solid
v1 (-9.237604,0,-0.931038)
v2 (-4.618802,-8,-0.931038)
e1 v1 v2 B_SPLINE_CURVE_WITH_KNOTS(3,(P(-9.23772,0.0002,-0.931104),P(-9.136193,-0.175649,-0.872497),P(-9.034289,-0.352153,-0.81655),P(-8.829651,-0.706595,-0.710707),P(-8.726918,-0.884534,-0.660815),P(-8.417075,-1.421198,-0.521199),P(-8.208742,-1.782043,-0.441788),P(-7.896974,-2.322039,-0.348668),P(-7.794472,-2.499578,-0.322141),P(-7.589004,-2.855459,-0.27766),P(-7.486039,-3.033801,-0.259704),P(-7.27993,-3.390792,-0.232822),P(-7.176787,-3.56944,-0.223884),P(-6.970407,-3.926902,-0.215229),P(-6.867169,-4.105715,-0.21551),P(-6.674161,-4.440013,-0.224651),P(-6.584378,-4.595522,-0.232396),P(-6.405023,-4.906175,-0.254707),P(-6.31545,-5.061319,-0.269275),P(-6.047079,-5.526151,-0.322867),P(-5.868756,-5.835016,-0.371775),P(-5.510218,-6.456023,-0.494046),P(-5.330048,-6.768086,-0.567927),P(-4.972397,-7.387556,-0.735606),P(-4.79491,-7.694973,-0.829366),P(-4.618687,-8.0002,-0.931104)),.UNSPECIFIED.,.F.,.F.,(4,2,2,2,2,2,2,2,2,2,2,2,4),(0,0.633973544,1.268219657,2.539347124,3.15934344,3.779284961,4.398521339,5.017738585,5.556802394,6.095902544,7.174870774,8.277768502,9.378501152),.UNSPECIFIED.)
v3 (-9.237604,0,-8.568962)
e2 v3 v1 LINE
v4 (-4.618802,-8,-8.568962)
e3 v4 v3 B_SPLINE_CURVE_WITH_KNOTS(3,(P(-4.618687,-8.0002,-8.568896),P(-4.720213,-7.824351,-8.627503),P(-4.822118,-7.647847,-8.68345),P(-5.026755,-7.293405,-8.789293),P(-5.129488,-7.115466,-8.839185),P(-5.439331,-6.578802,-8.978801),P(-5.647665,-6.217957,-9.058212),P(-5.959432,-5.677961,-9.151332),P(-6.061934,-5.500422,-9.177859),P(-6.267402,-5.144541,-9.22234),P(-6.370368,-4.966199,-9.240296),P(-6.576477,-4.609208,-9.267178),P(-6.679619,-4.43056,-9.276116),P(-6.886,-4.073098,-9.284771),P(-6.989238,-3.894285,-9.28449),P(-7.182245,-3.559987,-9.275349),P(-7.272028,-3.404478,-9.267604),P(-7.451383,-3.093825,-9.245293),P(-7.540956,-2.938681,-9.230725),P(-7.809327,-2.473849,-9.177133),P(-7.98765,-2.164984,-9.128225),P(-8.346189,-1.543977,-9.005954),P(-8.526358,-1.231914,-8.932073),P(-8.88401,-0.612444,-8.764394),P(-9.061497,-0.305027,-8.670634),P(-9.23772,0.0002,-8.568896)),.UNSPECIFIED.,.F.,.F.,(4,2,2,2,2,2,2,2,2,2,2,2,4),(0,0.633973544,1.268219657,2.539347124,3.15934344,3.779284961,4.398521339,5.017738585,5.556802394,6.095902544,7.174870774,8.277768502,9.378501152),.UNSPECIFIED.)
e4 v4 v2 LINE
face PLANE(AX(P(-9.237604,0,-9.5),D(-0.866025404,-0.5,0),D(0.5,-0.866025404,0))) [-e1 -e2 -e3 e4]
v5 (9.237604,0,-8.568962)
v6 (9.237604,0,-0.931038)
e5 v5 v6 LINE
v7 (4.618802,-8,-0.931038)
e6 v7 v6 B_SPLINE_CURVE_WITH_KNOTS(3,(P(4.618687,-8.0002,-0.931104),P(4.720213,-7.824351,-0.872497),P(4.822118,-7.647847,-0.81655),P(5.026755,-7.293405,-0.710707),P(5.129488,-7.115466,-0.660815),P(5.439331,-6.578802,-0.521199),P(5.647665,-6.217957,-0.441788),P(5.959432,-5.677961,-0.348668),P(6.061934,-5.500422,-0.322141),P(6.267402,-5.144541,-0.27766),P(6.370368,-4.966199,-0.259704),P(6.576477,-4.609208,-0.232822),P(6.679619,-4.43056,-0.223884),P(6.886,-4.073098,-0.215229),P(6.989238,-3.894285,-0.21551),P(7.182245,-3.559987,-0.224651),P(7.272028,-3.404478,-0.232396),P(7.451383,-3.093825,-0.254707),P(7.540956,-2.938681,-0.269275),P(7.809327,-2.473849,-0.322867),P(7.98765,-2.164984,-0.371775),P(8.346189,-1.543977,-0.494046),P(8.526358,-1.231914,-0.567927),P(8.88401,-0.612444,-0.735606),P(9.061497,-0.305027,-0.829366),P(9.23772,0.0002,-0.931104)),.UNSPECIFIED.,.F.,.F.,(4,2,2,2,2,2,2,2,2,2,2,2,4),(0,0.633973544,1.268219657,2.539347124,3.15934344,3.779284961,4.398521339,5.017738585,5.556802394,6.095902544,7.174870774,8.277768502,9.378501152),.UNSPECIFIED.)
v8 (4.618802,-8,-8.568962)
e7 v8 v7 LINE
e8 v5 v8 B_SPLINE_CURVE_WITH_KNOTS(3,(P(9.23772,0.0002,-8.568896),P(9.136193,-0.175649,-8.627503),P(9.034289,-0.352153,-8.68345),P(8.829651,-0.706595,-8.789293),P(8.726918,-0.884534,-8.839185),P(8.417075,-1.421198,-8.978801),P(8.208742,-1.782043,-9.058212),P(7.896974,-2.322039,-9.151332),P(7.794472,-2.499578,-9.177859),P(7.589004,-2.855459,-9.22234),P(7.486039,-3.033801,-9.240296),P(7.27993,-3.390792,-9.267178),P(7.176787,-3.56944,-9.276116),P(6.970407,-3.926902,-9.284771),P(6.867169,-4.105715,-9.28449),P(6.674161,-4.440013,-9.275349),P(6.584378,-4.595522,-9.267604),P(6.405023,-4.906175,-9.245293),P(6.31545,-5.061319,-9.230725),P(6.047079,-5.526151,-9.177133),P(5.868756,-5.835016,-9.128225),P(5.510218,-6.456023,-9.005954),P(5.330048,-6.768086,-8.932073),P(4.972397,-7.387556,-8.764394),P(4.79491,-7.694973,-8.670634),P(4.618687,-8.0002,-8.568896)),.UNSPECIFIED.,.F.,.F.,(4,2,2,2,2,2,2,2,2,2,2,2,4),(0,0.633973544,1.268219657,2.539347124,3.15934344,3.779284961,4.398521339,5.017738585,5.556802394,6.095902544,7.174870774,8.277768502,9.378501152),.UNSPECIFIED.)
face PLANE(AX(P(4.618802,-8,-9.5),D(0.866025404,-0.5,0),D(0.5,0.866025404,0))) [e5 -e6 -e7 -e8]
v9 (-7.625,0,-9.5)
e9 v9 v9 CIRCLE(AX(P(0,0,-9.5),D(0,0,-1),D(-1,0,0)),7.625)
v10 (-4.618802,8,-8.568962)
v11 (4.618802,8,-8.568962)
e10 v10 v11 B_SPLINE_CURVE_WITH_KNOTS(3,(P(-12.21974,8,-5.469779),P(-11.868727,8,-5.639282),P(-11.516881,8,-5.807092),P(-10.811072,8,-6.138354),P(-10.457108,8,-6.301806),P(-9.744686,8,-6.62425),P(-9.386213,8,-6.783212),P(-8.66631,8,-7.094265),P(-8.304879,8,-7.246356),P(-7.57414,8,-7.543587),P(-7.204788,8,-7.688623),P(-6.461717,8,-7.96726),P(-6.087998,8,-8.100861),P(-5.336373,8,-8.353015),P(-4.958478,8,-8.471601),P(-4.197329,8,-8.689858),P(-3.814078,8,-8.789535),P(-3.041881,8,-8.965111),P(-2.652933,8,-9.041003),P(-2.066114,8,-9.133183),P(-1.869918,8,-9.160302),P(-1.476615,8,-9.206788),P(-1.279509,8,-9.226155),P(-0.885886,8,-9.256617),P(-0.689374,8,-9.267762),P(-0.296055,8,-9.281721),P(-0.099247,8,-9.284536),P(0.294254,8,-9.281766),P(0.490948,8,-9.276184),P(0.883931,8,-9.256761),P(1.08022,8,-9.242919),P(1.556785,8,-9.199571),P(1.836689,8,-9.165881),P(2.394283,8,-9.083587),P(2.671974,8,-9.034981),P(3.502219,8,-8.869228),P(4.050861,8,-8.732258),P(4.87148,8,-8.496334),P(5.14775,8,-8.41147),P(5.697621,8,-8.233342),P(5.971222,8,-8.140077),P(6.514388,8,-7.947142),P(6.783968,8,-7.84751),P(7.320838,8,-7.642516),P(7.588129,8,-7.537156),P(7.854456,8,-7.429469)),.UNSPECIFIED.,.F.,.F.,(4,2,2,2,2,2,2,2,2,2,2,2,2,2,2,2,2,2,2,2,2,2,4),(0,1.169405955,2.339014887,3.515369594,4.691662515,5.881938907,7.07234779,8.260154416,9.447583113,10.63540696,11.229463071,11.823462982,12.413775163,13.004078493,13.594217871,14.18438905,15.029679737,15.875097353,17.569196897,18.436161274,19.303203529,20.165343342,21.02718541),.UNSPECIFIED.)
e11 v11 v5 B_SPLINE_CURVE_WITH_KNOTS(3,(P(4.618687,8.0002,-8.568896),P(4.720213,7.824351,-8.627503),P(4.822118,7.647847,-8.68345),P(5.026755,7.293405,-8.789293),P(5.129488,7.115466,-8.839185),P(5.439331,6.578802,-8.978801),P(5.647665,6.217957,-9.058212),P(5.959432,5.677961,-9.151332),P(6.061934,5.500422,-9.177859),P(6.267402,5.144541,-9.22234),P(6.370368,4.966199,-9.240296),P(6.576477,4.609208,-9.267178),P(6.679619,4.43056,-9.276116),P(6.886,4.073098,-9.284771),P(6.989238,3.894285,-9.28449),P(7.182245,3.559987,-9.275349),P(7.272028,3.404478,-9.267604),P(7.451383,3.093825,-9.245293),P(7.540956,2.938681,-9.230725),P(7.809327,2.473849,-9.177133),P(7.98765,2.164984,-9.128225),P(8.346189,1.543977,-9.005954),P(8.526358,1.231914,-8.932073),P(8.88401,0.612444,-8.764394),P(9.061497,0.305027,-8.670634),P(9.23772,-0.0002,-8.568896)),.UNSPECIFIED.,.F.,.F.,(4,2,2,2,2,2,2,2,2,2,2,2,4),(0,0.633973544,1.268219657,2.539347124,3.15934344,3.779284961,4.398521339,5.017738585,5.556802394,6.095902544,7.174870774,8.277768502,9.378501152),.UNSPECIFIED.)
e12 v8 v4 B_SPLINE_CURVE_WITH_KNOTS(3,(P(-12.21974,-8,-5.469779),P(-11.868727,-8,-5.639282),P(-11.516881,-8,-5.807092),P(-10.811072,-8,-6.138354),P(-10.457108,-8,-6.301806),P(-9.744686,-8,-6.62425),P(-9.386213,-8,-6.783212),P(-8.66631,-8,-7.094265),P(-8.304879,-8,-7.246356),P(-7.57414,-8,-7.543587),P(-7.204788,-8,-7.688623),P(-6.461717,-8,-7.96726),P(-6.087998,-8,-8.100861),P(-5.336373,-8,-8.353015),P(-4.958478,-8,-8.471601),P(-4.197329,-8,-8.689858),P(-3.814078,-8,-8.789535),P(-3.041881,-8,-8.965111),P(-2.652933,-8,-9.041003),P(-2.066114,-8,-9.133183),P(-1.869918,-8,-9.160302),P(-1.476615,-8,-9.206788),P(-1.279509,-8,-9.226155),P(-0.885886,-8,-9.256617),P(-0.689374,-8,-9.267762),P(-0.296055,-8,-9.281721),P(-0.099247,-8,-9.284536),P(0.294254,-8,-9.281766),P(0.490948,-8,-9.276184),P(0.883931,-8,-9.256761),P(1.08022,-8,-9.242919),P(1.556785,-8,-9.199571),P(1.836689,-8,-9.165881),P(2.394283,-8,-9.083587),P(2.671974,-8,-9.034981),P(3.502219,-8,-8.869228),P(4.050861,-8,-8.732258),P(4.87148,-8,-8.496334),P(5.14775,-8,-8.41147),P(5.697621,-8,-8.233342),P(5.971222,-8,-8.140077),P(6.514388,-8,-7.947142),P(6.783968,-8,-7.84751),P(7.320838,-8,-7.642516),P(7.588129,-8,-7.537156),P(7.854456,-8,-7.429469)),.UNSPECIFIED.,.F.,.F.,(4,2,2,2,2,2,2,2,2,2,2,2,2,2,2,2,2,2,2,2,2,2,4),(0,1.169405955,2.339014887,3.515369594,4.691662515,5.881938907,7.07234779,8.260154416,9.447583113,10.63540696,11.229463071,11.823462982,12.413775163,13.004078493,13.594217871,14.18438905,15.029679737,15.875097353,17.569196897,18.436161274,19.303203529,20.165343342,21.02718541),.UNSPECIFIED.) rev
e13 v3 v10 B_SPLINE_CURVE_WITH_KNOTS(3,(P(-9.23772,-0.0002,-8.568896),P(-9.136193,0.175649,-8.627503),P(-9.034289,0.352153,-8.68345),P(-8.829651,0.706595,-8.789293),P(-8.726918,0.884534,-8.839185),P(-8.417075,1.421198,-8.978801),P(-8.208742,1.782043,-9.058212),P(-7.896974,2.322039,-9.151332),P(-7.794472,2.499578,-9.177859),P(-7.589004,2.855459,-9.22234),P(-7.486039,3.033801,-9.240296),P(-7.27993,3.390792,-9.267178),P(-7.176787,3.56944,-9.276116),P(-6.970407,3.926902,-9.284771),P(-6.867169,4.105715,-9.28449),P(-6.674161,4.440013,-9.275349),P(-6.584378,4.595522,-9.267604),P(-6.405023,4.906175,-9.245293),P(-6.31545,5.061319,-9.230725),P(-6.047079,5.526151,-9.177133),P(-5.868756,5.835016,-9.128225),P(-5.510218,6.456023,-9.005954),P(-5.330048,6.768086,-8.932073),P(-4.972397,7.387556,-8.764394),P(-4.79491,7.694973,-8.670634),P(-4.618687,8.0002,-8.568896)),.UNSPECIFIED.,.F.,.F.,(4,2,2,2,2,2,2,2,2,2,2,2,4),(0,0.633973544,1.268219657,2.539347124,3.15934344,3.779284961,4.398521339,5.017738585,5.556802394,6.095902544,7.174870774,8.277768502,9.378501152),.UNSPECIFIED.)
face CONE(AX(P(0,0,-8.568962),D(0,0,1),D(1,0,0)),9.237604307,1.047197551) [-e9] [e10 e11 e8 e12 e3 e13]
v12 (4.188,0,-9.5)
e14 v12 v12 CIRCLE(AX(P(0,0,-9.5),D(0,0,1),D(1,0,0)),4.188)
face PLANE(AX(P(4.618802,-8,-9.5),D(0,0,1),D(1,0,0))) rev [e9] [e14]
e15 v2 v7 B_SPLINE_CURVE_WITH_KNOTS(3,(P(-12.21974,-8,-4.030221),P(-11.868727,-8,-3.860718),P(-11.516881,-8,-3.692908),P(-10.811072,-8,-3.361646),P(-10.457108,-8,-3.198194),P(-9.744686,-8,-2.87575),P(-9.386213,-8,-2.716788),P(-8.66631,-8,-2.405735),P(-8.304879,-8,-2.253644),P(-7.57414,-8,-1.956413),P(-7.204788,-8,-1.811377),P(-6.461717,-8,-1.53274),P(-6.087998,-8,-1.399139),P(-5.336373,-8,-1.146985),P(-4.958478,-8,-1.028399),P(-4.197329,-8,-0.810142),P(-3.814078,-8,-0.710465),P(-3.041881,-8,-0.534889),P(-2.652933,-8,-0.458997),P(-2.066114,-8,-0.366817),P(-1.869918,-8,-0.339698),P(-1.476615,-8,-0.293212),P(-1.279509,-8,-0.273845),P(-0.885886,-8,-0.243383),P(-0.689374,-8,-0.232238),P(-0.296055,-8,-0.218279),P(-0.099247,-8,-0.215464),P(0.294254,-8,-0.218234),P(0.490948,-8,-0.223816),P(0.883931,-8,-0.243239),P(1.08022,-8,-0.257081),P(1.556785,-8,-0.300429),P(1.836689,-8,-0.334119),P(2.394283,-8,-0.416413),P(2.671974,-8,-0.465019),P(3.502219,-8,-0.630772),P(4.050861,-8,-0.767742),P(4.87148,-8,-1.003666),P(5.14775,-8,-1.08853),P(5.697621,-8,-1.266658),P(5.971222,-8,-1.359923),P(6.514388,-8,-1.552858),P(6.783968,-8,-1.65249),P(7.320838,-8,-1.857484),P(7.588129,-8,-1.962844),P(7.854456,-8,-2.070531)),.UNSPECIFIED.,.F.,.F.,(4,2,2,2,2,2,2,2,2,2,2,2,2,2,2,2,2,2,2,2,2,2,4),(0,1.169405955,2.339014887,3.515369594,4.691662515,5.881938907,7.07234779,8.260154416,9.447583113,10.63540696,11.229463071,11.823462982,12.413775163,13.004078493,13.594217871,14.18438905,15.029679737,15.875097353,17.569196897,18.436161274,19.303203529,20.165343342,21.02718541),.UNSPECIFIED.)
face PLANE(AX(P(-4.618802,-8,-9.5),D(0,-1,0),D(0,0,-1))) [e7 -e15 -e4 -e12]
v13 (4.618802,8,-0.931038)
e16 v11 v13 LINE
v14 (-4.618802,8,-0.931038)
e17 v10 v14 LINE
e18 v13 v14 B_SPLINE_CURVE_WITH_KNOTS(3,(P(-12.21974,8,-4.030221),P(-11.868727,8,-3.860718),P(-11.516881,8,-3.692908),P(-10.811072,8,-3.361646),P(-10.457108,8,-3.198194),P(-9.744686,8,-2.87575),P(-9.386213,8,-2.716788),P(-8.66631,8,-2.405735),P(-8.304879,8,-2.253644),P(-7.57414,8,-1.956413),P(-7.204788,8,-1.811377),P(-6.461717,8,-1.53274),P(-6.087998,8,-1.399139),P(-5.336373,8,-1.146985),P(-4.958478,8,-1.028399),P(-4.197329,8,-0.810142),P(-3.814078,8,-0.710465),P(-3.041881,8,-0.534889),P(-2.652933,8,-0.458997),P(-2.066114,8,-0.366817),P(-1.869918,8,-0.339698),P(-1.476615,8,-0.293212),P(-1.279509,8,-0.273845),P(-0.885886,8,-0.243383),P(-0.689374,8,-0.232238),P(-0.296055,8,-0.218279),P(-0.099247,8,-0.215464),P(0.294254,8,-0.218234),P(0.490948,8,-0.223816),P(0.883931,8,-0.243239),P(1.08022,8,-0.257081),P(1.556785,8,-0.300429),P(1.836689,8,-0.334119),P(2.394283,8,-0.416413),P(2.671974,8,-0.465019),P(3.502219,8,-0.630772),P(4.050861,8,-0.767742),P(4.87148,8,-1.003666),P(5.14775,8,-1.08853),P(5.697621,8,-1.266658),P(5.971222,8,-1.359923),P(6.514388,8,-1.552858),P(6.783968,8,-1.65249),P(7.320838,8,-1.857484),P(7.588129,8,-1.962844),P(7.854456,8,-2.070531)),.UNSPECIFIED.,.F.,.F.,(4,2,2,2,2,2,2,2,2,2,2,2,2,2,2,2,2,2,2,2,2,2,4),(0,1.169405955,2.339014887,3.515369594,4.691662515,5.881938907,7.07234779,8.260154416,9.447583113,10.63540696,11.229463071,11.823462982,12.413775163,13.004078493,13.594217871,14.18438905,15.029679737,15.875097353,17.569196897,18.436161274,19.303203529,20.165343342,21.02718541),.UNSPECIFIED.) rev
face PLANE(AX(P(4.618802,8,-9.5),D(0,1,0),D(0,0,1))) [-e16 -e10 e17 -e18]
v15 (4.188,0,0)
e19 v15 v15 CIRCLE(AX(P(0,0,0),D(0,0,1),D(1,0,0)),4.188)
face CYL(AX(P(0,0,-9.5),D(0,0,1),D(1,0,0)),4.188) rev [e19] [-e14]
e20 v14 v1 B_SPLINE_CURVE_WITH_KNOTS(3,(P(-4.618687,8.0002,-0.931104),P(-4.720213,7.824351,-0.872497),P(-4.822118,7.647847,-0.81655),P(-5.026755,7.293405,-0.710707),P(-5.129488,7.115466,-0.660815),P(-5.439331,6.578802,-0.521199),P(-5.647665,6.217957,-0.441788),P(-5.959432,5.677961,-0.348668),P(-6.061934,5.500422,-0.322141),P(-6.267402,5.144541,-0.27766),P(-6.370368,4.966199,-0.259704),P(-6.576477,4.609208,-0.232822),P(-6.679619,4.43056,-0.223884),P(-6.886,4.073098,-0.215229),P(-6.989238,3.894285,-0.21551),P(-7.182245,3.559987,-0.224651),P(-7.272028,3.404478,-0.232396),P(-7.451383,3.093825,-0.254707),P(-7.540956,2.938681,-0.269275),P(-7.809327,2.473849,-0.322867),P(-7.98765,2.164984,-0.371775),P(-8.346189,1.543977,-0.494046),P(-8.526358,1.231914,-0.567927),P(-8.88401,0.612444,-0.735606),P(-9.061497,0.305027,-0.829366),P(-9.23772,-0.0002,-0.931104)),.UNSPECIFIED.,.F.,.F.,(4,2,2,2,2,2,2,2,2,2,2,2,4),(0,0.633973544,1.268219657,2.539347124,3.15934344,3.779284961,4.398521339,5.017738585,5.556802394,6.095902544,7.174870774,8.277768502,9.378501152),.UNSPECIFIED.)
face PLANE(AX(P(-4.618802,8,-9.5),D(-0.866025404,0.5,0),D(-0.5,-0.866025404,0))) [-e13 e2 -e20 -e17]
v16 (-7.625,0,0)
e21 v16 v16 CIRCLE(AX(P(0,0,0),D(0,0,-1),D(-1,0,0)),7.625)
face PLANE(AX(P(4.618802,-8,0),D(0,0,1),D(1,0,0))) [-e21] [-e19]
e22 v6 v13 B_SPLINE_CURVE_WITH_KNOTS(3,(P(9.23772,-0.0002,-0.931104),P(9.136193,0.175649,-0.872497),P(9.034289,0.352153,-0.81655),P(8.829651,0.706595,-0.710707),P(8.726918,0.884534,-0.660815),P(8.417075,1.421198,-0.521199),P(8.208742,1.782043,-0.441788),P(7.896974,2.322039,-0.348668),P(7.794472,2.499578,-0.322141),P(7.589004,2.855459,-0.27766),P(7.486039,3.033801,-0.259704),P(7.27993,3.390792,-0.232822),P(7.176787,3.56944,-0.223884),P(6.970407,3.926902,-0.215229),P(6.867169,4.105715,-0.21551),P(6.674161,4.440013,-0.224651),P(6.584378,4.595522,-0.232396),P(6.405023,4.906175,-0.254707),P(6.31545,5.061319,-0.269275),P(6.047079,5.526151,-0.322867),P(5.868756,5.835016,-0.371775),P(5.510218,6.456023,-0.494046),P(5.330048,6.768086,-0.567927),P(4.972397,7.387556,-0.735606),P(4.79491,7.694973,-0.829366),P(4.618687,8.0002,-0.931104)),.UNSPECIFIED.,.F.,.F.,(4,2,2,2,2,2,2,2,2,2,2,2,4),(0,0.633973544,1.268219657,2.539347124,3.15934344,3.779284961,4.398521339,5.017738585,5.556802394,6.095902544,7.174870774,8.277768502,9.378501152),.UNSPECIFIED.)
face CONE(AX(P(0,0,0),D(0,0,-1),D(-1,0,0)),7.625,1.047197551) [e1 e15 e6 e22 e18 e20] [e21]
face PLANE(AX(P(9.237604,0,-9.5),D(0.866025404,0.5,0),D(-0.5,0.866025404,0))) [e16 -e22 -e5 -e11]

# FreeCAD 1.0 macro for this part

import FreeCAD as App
import Part
import Sketcher
Q = App.Units.Quantity


def add_polygon(sketch, points):
    """Adds a closed chain of lines whose ends are joined by coincident constraints."""
    first, n = sketch.GeometryCount, len(points)
    for a, b in zip(points, points[1:] + points[:1]):
        sketch.addGeometry(Part.LineSegment(App.Vector(*a, 0), App.Vector(*b, 0)), False)
    for i in range(n):
        sketch.addConstraint(Sketcher.Constraint("Coincident", first + i, 2, first + (i + 1) % n, 1))

doc = App.newDocument("Part")
body = doc.addObject("PartDesign::Body", "Body")

sketch1 = body.newObject("Sketcher::SketchObject", "Sketch")
sketch1.AttachmentSupport = (doc.getObject("XY_Plane"), [""])
sketch1.MapMode = "FlatFace"
add_polygon(sketch1, [(4.618802, -8), (9.237604, 0), (4.618802, 8), (-4.618802, 8), (-9.237604, 0), (-4.618802, -8)])
sketch1.addGeometry(Part.Circle(App.Vector(0, 0, 0), App.Vector(0, 0, 1), 4.188), False)
sketch1.addConstraint([
    Sketcher.Constraint("Horizontal", 2),
    Sketcher.Constraint("Horizontal", 5),
    Sketcher.Constraint("Coincident", 6, 3, -1, 1),
    Sketcher.Constraint("Symmetric", 0, 2, 3, 2, -1, 1),
    Sketcher.Constraint("Symmetric", 1, 2, 4, 2, -1, 1),
    Sketcher.Constraint("PointOnObject", 0, 2, -1),
    Sketcher.Constraint("Parallel", 0, 3),
    Sketcher.Constraint("Vertical", 2, 2, 4, 2),
    Sketcher.Constraint("Angle", 0, Q("60 deg")),
    Sketcher.Constraint("Diameter", 6, 8.376),
    Sketcher.Constraint("DistanceY", -1, 1, 1, 2, 8.0),
    Sketcher.Constraint("DistanceX", 2, 2, 2, 1, 9.237604),
])
pad1 = body.newObject("PartDesign::Pad", "Pad")
pad1.Profile = sketch1
pad1.Length = 9.5
pad1.Reversed = True

sketch2 = body.newObject("Sketcher::SketchObject", "Sketch001")
sketch2.AttachmentSupport = (doc.getObject("XZ_Plane"), [""])
sketch2.MapMode = "FlatFace"
add_polygon(sketch2, [(-7.625, -9.5), (-9.237604, -9.5), (-9.237604, -8.568962)])
add_polygon(sketch2, [(-9.237604, -0.931038), (-9.237604, 0), (-7.625, 0)])
sketch2.addConstraint([
    Sketcher.Constraint("Horizontal", 0),
    Sketcher.Constraint("Vertical", 1),
    Sketcher.Constraint("Vertical", 3),
    Sketcher.Constraint("Horizontal", 4),
    Sketcher.Constraint("PointOnObject", 3, 2, -1),
    Sketcher.Constraint("Vertical", 1, 2, 3, 2),
    Sketcher.Constraint("Vertical", 2, 2, 4, 2),
    Sketcher.Constraint("Equal", 1, 3),
    Sketcher.Constraint("Angle", 2, Q("-30 deg")),
    Sketcher.Constraint("DistanceY", 0, 2, -1, 1, 9.5),
    Sketcher.Constraint("DistanceX", 2, 2, -1, 1, 7.625),
    Sketcher.Constraint("DistanceX", 0, 2, 0, 1, 1.612604),
])
groove = body.newObject("PartDesign::Groove", "Groove")
groove.Profile = sketch2
groove.ReferenceAxis = (sketch2, ["V_Axis"])
groove.Angle = 360

doc.recompute()
